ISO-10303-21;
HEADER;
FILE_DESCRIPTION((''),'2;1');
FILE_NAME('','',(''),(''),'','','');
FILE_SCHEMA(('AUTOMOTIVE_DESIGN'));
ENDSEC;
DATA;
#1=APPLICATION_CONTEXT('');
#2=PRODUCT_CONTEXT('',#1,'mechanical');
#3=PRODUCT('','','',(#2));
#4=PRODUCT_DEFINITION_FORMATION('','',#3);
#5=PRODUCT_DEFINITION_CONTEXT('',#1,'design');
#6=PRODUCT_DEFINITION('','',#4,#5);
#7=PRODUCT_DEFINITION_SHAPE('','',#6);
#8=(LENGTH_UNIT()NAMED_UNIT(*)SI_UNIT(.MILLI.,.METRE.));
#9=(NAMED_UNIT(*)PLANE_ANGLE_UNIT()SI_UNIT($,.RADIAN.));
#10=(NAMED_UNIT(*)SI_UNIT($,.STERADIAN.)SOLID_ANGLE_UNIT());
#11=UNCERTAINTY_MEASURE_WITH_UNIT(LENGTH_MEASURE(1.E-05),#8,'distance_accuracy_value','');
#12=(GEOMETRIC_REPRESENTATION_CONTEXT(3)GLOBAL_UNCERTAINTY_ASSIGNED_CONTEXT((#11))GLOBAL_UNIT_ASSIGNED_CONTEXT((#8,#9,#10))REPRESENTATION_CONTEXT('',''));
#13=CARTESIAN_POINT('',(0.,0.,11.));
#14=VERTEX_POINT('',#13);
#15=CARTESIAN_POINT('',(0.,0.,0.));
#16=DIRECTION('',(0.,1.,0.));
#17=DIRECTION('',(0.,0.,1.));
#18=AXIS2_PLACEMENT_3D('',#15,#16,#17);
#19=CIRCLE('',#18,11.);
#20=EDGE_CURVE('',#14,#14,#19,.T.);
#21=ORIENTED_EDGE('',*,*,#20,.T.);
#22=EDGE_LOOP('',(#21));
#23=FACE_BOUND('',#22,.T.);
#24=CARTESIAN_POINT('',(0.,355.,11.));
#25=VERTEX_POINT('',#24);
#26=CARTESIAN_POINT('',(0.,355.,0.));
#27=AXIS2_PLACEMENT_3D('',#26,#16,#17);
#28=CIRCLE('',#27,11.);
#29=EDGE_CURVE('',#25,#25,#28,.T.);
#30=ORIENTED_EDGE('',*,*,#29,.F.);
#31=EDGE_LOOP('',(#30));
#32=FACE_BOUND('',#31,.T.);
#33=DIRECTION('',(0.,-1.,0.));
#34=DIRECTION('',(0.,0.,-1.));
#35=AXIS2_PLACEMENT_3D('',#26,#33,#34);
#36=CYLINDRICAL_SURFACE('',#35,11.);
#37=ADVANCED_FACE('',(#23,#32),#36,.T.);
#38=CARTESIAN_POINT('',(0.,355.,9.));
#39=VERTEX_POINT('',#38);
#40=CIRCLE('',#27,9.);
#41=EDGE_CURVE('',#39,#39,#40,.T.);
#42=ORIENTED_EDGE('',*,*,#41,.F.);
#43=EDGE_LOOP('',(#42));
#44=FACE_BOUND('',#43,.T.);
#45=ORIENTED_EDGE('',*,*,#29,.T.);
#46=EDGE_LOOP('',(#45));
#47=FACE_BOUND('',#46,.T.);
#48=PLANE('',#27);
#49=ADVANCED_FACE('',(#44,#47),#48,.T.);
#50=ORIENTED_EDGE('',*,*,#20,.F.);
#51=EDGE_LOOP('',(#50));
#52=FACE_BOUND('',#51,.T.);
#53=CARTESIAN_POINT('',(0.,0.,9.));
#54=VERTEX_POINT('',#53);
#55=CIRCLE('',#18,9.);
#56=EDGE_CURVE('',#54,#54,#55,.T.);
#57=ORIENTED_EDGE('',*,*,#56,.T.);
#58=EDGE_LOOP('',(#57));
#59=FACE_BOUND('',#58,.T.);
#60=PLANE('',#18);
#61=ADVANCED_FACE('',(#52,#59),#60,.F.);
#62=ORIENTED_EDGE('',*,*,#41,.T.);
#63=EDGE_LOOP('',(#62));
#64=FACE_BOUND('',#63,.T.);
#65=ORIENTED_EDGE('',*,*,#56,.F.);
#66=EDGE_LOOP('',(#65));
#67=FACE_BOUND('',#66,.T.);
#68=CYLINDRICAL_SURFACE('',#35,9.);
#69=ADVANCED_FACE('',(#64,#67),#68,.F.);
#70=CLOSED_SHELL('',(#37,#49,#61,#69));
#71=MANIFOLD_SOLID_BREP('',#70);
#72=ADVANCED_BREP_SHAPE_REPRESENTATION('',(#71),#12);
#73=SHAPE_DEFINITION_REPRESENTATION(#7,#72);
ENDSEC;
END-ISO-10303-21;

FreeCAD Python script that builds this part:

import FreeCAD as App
import Part
import Sketcher
Q = App.Units.Quantity

doc = App.newDocument("Part")
params = doc.addObject("Spreadsheet::Sheet", "Params")
for row, (alias, value) in enumerate([
    ("sketch1_diameter", "22 mm"),
    ("sketch1_diameter2", "18 mm"),
    ("pad1_length", "355 mm"),
], start=1):
    params.set(f"A{row}", alias)
    params.set(f"B{row}", "=" + value)
    params.setAlias(f"B{row}", alias)

body = doc.addObject("PartDesign::Body", "Body")

sketch1 = body.newObject("Sketcher::SketchObject", "Sketch")
sketch1.AttachmentSupport = (doc.getObject("XZ_Plane"), [""])
sketch1.MapMode = "FlatFace"
sketch1.addGeometry([
    Part.Circle(App.Vector(0, 0, 0), App.Vector(0, 0, 1), 11),
    Part.Circle(App.Vector(0, 0, 0), App.Vector(0, 0, 1), 9),
], False)
sketch1.addConstraint([
    Sketcher.Constraint("Coincident", 0, 3, -1, 1),
    Sketcher.Constraint("Coincident", 1, 3, -1, 1),
    Sketcher.Constraint("Diameter", 0, Q("22 mm")),
    Sketcher.Constraint("Diameter", 1, Q("18 mm")),
])
sketch1.setExpression("Constraints[2]", "Params.sketch1_diameter")
sketch1.setExpression("Constraints[3]", "Params.sketch1_diameter2")
pad1 = body.newObject("PartDesign::Pad", "Pad")
pad1.Profile = sketch1
pad1.setExpression("Length", "Params.pad1_length")
pad1.Reversed = True

doc.recompute()
